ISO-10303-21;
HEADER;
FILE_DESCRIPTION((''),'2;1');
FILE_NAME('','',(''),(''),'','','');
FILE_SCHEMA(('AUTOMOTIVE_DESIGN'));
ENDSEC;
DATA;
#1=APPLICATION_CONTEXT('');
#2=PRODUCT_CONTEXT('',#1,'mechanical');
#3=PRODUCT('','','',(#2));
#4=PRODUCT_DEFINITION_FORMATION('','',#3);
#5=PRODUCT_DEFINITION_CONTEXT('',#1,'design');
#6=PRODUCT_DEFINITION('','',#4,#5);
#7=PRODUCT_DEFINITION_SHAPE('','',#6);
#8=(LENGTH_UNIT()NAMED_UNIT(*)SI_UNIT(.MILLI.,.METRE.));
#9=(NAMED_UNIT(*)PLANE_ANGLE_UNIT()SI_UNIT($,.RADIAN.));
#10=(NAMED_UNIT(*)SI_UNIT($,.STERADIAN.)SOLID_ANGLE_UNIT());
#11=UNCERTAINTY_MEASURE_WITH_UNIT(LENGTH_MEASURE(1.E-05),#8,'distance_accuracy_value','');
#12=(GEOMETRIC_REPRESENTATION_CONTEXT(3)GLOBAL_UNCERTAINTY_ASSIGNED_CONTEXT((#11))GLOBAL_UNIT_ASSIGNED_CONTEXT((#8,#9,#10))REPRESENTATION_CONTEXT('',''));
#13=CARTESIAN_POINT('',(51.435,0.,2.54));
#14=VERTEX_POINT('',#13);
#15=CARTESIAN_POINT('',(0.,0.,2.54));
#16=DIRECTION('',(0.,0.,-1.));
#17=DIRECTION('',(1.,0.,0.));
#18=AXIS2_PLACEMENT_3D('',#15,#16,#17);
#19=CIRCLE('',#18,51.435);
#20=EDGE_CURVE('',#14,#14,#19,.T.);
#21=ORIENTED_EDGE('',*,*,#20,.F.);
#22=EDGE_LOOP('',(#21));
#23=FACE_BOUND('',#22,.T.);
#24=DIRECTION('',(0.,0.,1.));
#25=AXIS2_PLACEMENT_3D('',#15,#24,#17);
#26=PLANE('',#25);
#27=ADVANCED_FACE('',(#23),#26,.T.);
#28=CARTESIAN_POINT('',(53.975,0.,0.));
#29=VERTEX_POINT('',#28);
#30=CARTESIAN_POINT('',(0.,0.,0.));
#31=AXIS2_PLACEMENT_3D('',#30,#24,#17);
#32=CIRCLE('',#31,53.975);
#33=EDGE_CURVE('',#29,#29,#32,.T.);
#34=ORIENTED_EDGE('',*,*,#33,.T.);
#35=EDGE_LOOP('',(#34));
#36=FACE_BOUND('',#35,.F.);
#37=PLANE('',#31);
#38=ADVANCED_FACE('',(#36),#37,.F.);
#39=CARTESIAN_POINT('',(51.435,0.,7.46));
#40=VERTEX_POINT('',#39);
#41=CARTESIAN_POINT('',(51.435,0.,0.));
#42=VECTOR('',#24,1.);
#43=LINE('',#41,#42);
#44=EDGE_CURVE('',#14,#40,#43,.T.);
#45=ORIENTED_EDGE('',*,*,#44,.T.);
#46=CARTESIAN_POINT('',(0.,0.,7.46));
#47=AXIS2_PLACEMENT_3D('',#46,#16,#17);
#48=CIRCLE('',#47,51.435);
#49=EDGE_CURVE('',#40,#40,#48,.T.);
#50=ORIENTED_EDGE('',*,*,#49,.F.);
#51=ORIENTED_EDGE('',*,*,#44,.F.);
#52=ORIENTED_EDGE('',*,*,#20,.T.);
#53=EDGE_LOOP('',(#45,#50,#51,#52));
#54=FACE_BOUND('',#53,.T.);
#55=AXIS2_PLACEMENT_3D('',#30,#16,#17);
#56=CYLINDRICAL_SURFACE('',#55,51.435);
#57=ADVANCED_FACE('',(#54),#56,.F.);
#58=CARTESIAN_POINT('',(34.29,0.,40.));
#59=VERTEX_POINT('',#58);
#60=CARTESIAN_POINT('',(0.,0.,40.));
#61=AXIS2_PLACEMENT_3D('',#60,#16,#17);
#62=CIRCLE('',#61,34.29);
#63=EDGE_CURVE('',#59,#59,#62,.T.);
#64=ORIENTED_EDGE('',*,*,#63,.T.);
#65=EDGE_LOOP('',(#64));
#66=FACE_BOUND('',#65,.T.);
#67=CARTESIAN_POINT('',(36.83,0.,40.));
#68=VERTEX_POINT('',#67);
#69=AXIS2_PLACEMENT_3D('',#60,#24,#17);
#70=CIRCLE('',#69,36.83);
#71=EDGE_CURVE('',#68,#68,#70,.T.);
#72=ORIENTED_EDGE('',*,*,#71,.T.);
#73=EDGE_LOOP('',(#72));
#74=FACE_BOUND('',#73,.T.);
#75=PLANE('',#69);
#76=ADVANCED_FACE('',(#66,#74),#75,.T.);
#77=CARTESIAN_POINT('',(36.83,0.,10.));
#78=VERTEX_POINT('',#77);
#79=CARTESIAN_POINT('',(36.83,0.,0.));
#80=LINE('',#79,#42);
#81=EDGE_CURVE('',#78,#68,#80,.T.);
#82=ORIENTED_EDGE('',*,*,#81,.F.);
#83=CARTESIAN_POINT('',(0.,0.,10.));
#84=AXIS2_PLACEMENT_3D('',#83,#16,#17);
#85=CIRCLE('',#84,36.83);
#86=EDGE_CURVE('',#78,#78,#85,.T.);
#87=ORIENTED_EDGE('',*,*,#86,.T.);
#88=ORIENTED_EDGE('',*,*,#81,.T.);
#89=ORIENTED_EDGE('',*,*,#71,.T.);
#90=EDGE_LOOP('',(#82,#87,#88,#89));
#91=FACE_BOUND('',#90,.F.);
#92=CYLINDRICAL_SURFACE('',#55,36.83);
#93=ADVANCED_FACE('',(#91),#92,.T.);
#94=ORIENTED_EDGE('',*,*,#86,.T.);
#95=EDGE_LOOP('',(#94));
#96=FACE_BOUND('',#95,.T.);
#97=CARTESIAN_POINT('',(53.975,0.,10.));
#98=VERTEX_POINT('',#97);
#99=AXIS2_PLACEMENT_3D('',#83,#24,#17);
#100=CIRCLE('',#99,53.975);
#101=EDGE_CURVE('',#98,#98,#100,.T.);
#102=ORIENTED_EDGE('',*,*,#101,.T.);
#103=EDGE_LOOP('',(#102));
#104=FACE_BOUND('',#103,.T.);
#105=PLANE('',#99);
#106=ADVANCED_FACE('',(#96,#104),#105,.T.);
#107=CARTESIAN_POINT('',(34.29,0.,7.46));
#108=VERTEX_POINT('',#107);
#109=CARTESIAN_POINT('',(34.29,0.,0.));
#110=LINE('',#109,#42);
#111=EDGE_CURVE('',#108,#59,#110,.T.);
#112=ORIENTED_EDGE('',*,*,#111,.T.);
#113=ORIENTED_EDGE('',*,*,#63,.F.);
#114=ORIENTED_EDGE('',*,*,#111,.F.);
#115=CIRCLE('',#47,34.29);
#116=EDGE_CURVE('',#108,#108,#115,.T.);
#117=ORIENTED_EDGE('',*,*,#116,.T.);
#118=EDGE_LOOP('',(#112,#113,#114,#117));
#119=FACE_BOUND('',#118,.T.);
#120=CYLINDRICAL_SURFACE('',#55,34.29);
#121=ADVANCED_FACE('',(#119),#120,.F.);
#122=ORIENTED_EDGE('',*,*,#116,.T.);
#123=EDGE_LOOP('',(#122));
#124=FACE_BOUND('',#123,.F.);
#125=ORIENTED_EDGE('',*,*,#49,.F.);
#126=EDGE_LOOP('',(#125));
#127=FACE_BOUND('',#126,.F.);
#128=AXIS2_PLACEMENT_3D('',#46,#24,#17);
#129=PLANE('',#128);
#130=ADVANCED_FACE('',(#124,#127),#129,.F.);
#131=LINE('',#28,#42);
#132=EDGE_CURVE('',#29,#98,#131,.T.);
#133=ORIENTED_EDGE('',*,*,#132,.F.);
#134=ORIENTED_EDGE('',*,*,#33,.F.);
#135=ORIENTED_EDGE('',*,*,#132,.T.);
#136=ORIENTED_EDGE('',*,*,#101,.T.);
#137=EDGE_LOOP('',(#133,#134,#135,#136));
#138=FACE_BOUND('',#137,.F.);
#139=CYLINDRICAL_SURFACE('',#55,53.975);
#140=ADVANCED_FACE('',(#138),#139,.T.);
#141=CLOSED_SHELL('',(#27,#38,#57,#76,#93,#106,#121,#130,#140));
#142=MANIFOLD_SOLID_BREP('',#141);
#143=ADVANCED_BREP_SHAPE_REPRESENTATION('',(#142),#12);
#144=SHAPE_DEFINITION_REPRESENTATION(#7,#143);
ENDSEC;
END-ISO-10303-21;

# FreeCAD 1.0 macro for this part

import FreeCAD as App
import Part
import Sketcher
Q = App.Units.Quantity


def faces_at(feature, points):
    """Names of the faces that lie closest to the given points."""
    faces = feature.Shape.Faces
    near = lambda p: min(range(len(faces)), key=lambda i: faces[i].distToShape(Part.Vertex(*p))[0])
    return sorted({f"Face{near(p) + 1}" for p in points})

doc = App.newDocument("Part")
body = doc.addObject("PartDesign::Body", "Body")

# Sketch on XY plane
sketch1 = body.newObject("Sketcher::SketchObject", "Sketch")
sketch1.AttachmentSupport = (doc.getObject("XY_Plane"), [""])
sketch1.MapMode = "FlatFace"
sketch1.addGeometry(Part.Circle(App.Vector(0, 0, 0), App.Vector(0, 0, 1), 53.975), False)
sketch1.addConstraint([
    Sketcher.Constraint("Coincident", 0, 3, -1, 1),
    Sketcher.Constraint("Diameter", 0, Q("4.25 in")),
])
pad1 = body.newObject("PartDesign::Pad", "Pad")
pad1.Profile = sketch1
pad1.Length = 10

# Sketch on XY plane
sketch2 = body.newObject("Sketcher::SketchObject", "Sketch001")
sketch2.AttachmentSupport = (doc.getObject("XY_Plane"), [""])
sketch2.MapMode = "FlatFace"
sketch2.addGeometry(Part.Circle(App.Vector(0, 0, 0), App.Vector(0, 0, 1), 36.83), False)
sketch2.addConstraint([
    Sketcher.Constraint("Coincident", 0, 3, -1, 1),
    Sketcher.Constraint("Diameter", 0, Q("2.9 in")),
])
pad2 = body.newObject("PartDesign::Pad", "Pad001")
pad2.Profile = sketch2
pad2.Length = 40
doc.recompute()

thickness = body.newObject("PartDesign::Thickness", "Thickness")
thickness.Base = (pad2, faces_at(pad2, [(0, 0, 40)]))
thickness.Value = Q("0.1 in")
thickness.Reversed = True
thickness.Join = "Intersection"

doc.recompute()
